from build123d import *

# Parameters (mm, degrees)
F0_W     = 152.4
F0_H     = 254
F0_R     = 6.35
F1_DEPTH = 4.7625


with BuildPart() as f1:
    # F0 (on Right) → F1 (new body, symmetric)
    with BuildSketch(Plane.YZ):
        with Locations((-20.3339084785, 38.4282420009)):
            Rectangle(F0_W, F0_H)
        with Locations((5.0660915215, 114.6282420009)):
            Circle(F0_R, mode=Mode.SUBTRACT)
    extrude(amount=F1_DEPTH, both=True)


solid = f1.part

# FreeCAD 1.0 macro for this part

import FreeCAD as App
import Part
import Sketcher

V = App.Vector
Q = App.Units.Quantity


def add_polygon(sketch, points):
    """Adds a closed chain of lines whose ends are joined by coincident constraints."""
    first, n = sketch.GeometryCount, len(points)
    for a, b in zip(points, points[1:] + points[:1]):
        sketch.addGeometry(Part.LineSegment(App.Vector(*a, 0), App.Vector(*b, 0)), False)
    for i in range(n):
        sketch.addConstraint(Sketcher.Constraint("Coincident", first + i, 2, first + (i + 1) % n, 1))

doc = App.newDocument("Part")
body = doc.addObject("PartDesign::Body", "Body")

sketch1 = body.newObject("Sketcher::SketchObject", "Sketch")
sketch1.AttachmentSupport = (doc.getObject("YZ_Plane"), [""])
sketch1.MapMode = "FlatFace"
add_polygon(sketch1, [(-96.533908, 165.428242), (-96.533908, -88.571758), (55.866092, -88.571758), (55.866092, 165.428242)])
sketch1.addGeometry(Part.Circle(V(5.066092, 114.628242, 0), V(0, 0, 1), 6.35), False)
sketch1.addConstraint([
    Sketcher.Constraint("Vertical", 0),
    Sketcher.Constraint("Horizontal", 1),
    Sketcher.Constraint("Vertical", 2),
    Sketcher.Constraint("Horizontal", 3),
    Sketcher.Constraint("Diameter", 4, Q("0.5 in")),
    Sketcher.Constraint("DistanceX", 1, 1, 1, 2, Q("6 in")),
    Sketcher.Constraint("DistanceY", 0, 2, 0, 1, Q("10 in")),
    Sketcher.Constraint("DistanceX", 0, 2, 4, 3, Q("4 in")),
    Sketcher.Constraint("DistanceY", 0, 2, 4, 3, Q("8 in")),
    Sketcher.Constraint("DistanceX", -1, 1, 4, 3, Q("5.066092 mm")),
    Sketcher.Constraint("DistanceY", -1, 1, 4, 3, Q("114.628242 mm")),
])
pad1 = body.newObject("PartDesign::Pad", "Pad")
pad1.Profile = sketch1
pad1.Length = Q("0.375 in")
pad1.Midplane = True

doc.recompute()
